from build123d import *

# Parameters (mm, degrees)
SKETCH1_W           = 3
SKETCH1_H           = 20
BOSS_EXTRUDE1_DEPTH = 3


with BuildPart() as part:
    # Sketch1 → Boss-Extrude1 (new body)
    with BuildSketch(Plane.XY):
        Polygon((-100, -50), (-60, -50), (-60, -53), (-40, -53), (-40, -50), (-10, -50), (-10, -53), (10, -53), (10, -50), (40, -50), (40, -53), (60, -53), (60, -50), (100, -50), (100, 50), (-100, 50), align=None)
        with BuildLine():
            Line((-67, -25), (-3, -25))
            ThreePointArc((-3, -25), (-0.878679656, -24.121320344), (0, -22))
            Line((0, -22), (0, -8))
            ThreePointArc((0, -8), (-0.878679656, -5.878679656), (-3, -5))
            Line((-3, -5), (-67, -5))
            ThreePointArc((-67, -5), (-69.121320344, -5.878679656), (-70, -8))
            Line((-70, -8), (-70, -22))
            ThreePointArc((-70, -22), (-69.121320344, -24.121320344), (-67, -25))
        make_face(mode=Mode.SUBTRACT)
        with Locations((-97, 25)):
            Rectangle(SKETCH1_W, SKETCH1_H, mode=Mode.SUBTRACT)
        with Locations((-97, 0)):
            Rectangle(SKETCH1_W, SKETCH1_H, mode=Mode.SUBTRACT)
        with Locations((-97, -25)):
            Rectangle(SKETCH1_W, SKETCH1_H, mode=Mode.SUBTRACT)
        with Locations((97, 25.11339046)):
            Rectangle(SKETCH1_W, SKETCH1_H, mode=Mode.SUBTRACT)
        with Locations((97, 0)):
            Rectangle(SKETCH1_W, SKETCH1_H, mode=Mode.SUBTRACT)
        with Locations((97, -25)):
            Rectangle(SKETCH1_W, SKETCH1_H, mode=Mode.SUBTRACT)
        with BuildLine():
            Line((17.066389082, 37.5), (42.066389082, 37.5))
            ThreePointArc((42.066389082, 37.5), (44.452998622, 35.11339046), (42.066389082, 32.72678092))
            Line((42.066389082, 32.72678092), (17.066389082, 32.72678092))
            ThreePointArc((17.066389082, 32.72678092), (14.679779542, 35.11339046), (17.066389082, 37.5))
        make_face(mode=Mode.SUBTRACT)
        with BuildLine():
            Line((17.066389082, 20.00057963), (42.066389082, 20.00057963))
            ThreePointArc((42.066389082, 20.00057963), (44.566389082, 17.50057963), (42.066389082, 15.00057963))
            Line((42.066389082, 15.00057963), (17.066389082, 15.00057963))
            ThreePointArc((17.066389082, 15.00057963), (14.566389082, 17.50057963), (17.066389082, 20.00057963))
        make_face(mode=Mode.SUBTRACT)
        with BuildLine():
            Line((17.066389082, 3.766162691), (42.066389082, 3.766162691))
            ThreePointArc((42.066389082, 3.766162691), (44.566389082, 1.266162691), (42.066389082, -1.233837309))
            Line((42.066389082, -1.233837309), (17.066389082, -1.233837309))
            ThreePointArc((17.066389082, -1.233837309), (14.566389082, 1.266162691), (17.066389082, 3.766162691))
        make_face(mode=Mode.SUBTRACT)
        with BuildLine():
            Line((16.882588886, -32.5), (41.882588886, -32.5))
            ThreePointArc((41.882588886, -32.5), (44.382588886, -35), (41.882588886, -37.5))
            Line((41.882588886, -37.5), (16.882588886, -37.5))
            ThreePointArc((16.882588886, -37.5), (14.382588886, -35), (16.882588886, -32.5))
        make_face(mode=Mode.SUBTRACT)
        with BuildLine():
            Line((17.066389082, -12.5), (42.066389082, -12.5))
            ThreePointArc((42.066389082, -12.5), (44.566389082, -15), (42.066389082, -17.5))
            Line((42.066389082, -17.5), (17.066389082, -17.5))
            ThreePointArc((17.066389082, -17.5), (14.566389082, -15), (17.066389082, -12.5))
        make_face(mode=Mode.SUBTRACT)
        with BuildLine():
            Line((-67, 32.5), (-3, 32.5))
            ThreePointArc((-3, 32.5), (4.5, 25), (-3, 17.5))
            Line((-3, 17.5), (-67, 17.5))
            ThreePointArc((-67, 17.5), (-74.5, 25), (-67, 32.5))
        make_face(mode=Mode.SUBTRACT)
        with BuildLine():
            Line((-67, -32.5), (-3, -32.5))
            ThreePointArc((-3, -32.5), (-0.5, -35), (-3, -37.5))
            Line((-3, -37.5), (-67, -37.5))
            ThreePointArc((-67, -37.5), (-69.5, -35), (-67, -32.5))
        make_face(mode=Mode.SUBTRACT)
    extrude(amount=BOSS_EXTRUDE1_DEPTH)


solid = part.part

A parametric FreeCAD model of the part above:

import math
import FreeCAD as App
import Part
import Sketcher

V = App.Vector


def add_polygon(sketch, points):
    """Adds a closed chain of lines whose ends are joined by coincident constraints."""
    first, n = sketch.GeometryCount, len(points)
    for a, b in zip(points, points[1:] + points[:1]):
        sketch.addGeometry(Part.LineSegment(App.Vector(*a, 0), App.Vector(*b, 0)), False)
    for i in range(n):
        sketch.addConstraint(Sketcher.Constraint("Coincident", first + i, 2, first + (i + 1) % n, 1))

doc = App.newDocument("Part")
body = doc.addObject("PartDesign::Body", "Body")

sketch1 = body.newObject("Sketcher::SketchObject", "Sketch")
sketch1.AttachmentSupport = (doc.getObject("XY_Plane"), [""])
sketch1.MapMode = "FlatFace"
add_polygon(sketch1, [(-100, -50), (-60, -50), (-60, -53), (-40, -53), (-40, -50), (-10, -50), (-10, -53), (10, -53), (10, -50), (40, -50), (40, -53), (60, -53), (60, -50), (100, -50), (100, 50), (-100, 50)])
add_polygon(sketch1, [(-95.5, -35), (-98.5, -35), (-98.5, -15), (-95.5, -15)])
sketch1.addGeometry(Part.ArcOfCircle(Part.Circle(V(-67, -35, 0), V(0, 0, 1), 2.5), math.radians(90), math.radians(270)), False)
sketch1.addGeometry(Part.LineSegment(V(-67, -32.5, 0), V(-3, -32.5, 0)), False)
sketch1.addGeometry(Part.ArcOfCircle(Part.Circle(V(-3, -35, 0), V(0, 0, 1), 2.5), math.radians(-90), math.radians(90)), False)
sketch1.addGeometry(Part.LineSegment(V(-3, -37.5, 0), V(-67, -37.5, 0)), False)
sketch1.addGeometry(Part.LineSegment(V(-3, -25, 0), V(-67, -25, 0)), False)
sketch1.addGeometry(Part.ArcOfCircle(Part.Circle(V(-67, -22, 0), V(0, 0, 1), 3), math.radians(180), math.radians(270)), False)
sketch1.addGeometry(Part.LineSegment(V(-70, -22, 0), V(-70, -8, 0)), False)
sketch1.addGeometry(Part.ArcOfCircle(Part.Circle(V(-67, -8, 0), V(0, 0, 1), 3), math.radians(90), math.radians(180)), False)
sketch1.addGeometry(Part.LineSegment(V(-67, -5, 0), V(-3, -5, 0)), False)
sketch1.addGeometry(Part.ArcOfCircle(Part.Circle(V(-3, -8, 0), V(0, 0, 1), 3), math.radians(0), math.radians(90)), False)
sketch1.addGeometry(Part.LineSegment(V(0, -8, 0), V(0, -22, 0)), False)
sketch1.addGeometry(Part.ArcOfCircle(Part.Circle(V(-3, -22, 0), V(0, 0, 1), 3), math.radians(-90), math.radians(0)), False)
sketch1.addGeometry(Part.ArcOfCircle(Part.Circle(V(16.9, -35, 0), V(0, 0, 1), 2.5), math.radians(90), math.radians(270)), False)
sketch1.addGeometry(Part.LineSegment(V(16.9, -32.5, 0), V(41.9, -32.5, 0)), False)
sketch1.addGeometry(Part.ArcOfCircle(Part.Circle(V(41.9, -35, 0), V(0, 0, 1), 2.5), math.radians(-90), math.radians(90)), False)
sketch1.addGeometry(Part.LineSegment(V(41.9, -37.5, 0), V(16.9, -37.5, 0)), False)
add_polygon(sketch1, [(98.5, -35), (95.5, -35), (95.5, -15), (98.5, -15)])
sketch1.addGeometry(Part.ArcOfCircle(Part.Circle(V(17.1, -15, 0), V(0, 0, 1), 2.5), math.radians(90), math.radians(270)), False)
sketch1.addGeometry(Part.LineSegment(V(17.1, -12.5, 0), V(42.1, -12.5, 0)), False)
sketch1.addGeometry(Part.ArcOfCircle(Part.Circle(V(42.1, -15, 0), V(0, 0, 1), 2.5), math.radians(-90), math.radians(90)), False)
sketch1.addGeometry(Part.LineSegment(V(42.1, -17.5, 0), V(17.1, -17.5, 0)), False)
add_polygon(sketch1, [(-95.5, -10), (-98.5, -10), (-98.5, 10), (-95.5, 10)])
add_polygon(sketch1, [(-95.5, 15), (-98.5, 15), (-98.5, 35), (-95.5, 35)])
sketch1.addGeometry(Part.ArcOfCircle(Part.Circle(V(-67, 25, 0), V(0, 0, 1), 7.5), math.radians(90), math.radians(270)), False)
sketch1.addGeometry(Part.LineSegment(V(-67, 32.5, 0), V(-3, 32.5, 0)), False)
sketch1.addGeometry(Part.ArcOfCircle(Part.Circle(V(-3, 25, 0), V(0, 0, 1), 7.5), math.radians(-90), math.radians(90)), False)
sketch1.addGeometry(Part.LineSegment(V(-3, 17.5, 0), V(-67, 17.5, 0)), False)
sketch1.addGeometry(Part.ArcOfCircle(Part.Circle(V(17.1, 1.3, 0), V(0, 0, 1), 2.5), math.radians(90), math.radians(270)), False)
sketch1.addGeometry(Part.LineSegment(V(17.1, 3.8, 0), V(42.1, 3.8, 0)), False)
sketch1.addGeometry(Part.ArcOfCircle(Part.Circle(V(42.1, 1.3, 0), V(0, 0, 1), 2.5), math.radians(-90), math.radians(90)), False)
sketch1.addGeometry(Part.LineSegment(V(42.1, -1.2, 0), V(17.1, -1.2, 0)), False)
sketch1.addGeometry(Part.ArcOfCircle(Part.Circle(V(17.1, 17.5, 0), V(0, 0, 1), 2.5), math.radians(90), math.radians(270)), False)
sketch1.addGeometry(Part.LineSegment(V(17.1, 20, 0), V(42.1, 20, 0)), False)
sketch1.addGeometry(Part.ArcOfCircle(Part.Circle(V(42.1, 17.5, 0), V(0, 0, 1), 2.5), math.radians(-90), math.radians(90)), False)
sketch1.addGeometry(Part.LineSegment(V(42.1, 15, 0), V(17.1, 15, 0)), False)
add_polygon(sketch1, [(98.5, -10), (95.5, -10), (95.5, 10), (98.5, 10)])
sketch1.addGeometry(Part.ArcOfCircle(Part.Circle(V(17.1, 35.1, 0), V(0, 0, 1), 2.4), math.radians(90), math.radians(270)), False)
sketch1.addGeometry(Part.LineSegment(V(17.1, 37.5, 0), V(42.1, 37.5, 0)), False)
sketch1.addGeometry(Part.ArcOfCircle(Part.Circle(V(42.1, 35.1, 0), V(0, 0, 1), 2.4), math.radians(-90), math.radians(90)), False)
sketch1.addGeometry(Part.LineSegment(V(42.1, 32.7, 0), V(17.1, 32.7, 0)), False)
add_polygon(sketch1, [(98.5, 15.1), (95.5, 15.1), (95.5, 35.1), (98.5, 35.1)])
sketch1.addConstraint([
    Sketcher.Constraint("Tangent", 20, 1, 21, 1),
    Sketcher.Constraint("Tangent", 21, 2, 22, 2),
    Sketcher.Constraint("Tangent", 22, 1, 23, 1),
    Sketcher.Constraint("Tangent", 23, 2, 20, 2),
    Sketcher.Constraint("Tangent", 24, 2, 25, 2),
    Sketcher.Constraint("Tangent", 25, 1, 26, 1),
    Sketcher.Constraint("Tangent", 26, 2, 27, 2),
    Sketcher.Constraint("Tangent", 27, 1, 28, 1),
    Sketcher.Constraint("Tangent", 28, 2, 29, 2),
    Sketcher.Constraint("Tangent", 29, 1, 30, 1),
    Sketcher.Constraint("Tangent", 30, 2, 31, 2),
    Sketcher.Constraint("Tangent", 31, 1, 24, 1),
    Sketcher.Constraint("Tangent", 32, 1, 33, 1),
    Sketcher.Constraint("Tangent", 33, 2, 34, 2),
    Sketcher.Constraint("Tangent", 34, 1, 35, 1),
    Sketcher.Constraint("Tangent", 35, 2, 32, 2),
    Sketcher.Constraint("Tangent", 40, 1, 41, 1),
    Sketcher.Constraint("Tangent", 41, 2, 42, 2),
    Sketcher.Constraint("Tangent", 42, 1, 43, 1),
    Sketcher.Constraint("Tangent", 43, 2, 40, 2),
    Sketcher.Constraint("Tangent", 52, 1, 53, 1),
    Sketcher.Constraint("Tangent", 53, 2, 54, 2),
    Sketcher.Constraint("Tangent", 54, 1, 55, 1),
    Sketcher.Constraint("Tangent", 55, 2, 52, 2),
    Sketcher.Constraint("Tangent", 56, 1, 57, 1),
    Sketcher.Constraint("Tangent", 57, 2, 58, 2),
    Sketcher.Constraint("Tangent", 58, 1, 59, 1),
    Sketcher.Constraint("Tangent", 59, 2, 56, 2),
    Sketcher.Constraint("Tangent", 60, 1, 61, 1),
    Sketcher.Constraint("Tangent", 61, 2, 62, 2),
    Sketcher.Constraint("Tangent", 62, 1, 63, 1),
    Sketcher.Constraint("Tangent", 63, 2, 60, 2),
    Sketcher.Constraint("Tangent", 68, 1, 69, 1),
    Sketcher.Constraint("Tangent", 69, 2, 70, 2),
    Sketcher.Constraint("Tangent", 70, 1, 71, 1),
    Sketcher.Constraint("Tangent", 71, 2, 68, 2),
    Sketcher.Constraint("Horizontal", 0),
    Sketcher.Constraint("Vertical", 1),
    Sketcher.Constraint("Horizontal", 2),
    Sketcher.Constraint("Vertical", 3),
    Sketcher.Constraint("Horizontal", 4),
    Sketcher.Constraint("Vertical", 5),
    Sketcher.Constraint("Horizontal", 6),
    Sketcher.Constraint("Vertical", 7),
    Sketcher.Constraint("Horizontal", 8),
    Sketcher.Constraint("Vertical", 9),
    Sketcher.Constraint("Horizontal", 10),
    Sketcher.Constraint("Vertical", 11),
    Sketcher.Constraint("Horizontal", 12),
    Sketcher.Constraint("Vertical", 13),
    Sketcher.Constraint("Horizontal", 14),
    Sketcher.Constraint("Vertical", 15),
    Sketcher.Constraint("Horizontal", 16),
    Sketcher.Constraint("Vertical", 17),
    Sketcher.Constraint("Horizontal", 18),
    Sketcher.Constraint("Vertical", 19),
    Sketcher.Constraint("Horizontal", 21),
    Sketcher.Constraint("Horizontal", 23),
    Sketcher.Constraint("Horizontal", 24),
    Sketcher.Constraint("Vertical", 26),
    Sketcher.Constraint("Horizontal", 28),
    Sketcher.Constraint("Vertical", 30),
    Sketcher.Constraint("Horizontal", 33),
    Sketcher.Constraint("Horizontal", 35),
    Sketcher.Constraint("Horizontal", 36),
    Sketcher.Constraint("Vertical", 37),
    Sketcher.Constraint("Horizontal", 38),
    Sketcher.Constraint("Vertical", 39),
    Sketcher.Constraint("Horizontal", 41),
    Sketcher.Constraint("Horizontal", 43),
    Sketcher.Constraint("Horizontal", 44),
    Sketcher.Constraint("Vertical", 45),
    Sketcher.Constraint("Horizontal", 46),
    Sketcher.Constraint("Vertical", 47),
    Sketcher.Constraint("Horizontal", 48),
    Sketcher.Constraint("Vertical", 49),
    Sketcher.Constraint("Horizontal", 50),
    Sketcher.Constraint("Vertical", 51),
    Sketcher.Constraint("Horizontal", 53),
    Sketcher.Constraint("Horizontal", 55),
    Sketcher.Constraint("Horizontal", 57),
    Sketcher.Constraint("Horizontal", 59),
    Sketcher.Constraint("Horizontal", 61),
    Sketcher.Constraint("Horizontal", 63),
    Sketcher.Constraint("Horizontal", 64),
    Sketcher.Constraint("Vertical", 65),
    Sketcher.Constraint("Horizontal", 66),
    Sketcher.Constraint("Vertical", 67),
    Sketcher.Constraint("Horizontal", 69),
    Sketcher.Constraint("Horizontal", 71),
    Sketcher.Constraint("Horizontal", 72),
    Sketcher.Constraint("Vertical", 73),
    Sketcher.Constraint("Horizontal", 74),
    Sketcher.Constraint("Vertical", 75),
    Sketcher.Constraint("Equal", 25, 27),
    Sketcher.Constraint("Equal", 27, 29),
    Sketcher.Constraint("Equal", 29, 31),
    Sketcher.Constraint("Equal", 22, 32),
    Sketcher.Constraint("Equal", 34, 40),
    Sketcher.Constraint("Equal", 42, 56),
    Sketcher.Constraint("Equal", 58, 60),
    Sketcher.Constraint("Symmetric", 12, 2, 14, 2, -1, 1),
    Sketcher.Constraint("Symmetric", 38, 2, 48, 2, -1, 1),
    Sketcher.Constraint("Symmetric", 36, 2, 50, 2, -1, 1),
    Sketcher.Constraint("Symmetric", 46, 2, 64, 2, -1, 1),
    Sketcher.Constraint("Symmetric", 44, 2, 66, 2, -1, 1),
    Sketcher.Constraint("Symmetric", 4, 2, 7, 2, -2),
    Sketcher.Constraint("Symmetric", 2, 2, 9, 2, -2),
    Sketcher.Constraint("Symmetric", 0, 2, 11, 2, -2),
    Sketcher.Constraint("Symmetric", 19, 2, 36, 2, -2),
    Sketcher.Constraint("Symmetric", 17, 2, 38, 2, -2),
    Sketcher.Constraint("Symmetric", 20, 1, 52, 1, -1),
    Sketcher.Constraint("PointOnObject", 29, 1, -2),
    Sketcher.Constraint("Horizontal", 22, 3, 32, 3),
    Sketcher.Constraint("Horizontal", 0, 2, 3, 2),
    Sketcher.Constraint("Horizontal", 2, 2, 5, 2),
    Sketcher.Constraint("Horizontal", 34, 3, 16, 2),
    Sketcher.Constraint("Horizontal", 42, 3, 17, 2),
    Sketcher.Constraint("Horizontal", 47, 2, 64, 2),
    Sketcher.Constraint("Horizontal", 70, 3, 73, 2),
    Sketcher.Constraint("Vertical", 20, 3, 25, 3),
    Sketcher.Constraint("Vertical", 22, 3, 29, 3),
    Sketcher.Constraint("Vertical", 31, 3, 54, 3),
    Sketcher.Constraint("Vertical", 40, 3, 56, 3),
    Sketcher.Constraint("Vertical", 42, 3, 58, 3),
    Sketcher.Constraint("Vertical", 56, 3, 60, 3),
    Sketcher.Constraint("Vertical", 58, 3, 62, 3),
    Sketcher.Constraint("Vertical", 60, 3, 68, 3),
    Sketcher.Constraint("Vertical", 62, 3, 70, 3),
    Sketcher.Constraint("Vertical", 17, 2, 44, 2),
    Sketcher.Constraint("Vertical", 19, 2, 46, 2),
    Sketcher.Constraint("Vertical", 65, 2, 72, 2),
    Sketcher.Constraint("Vertical", 67, 2, 74, 2),
    Sketcher.Constraint("Equal", 2, 6),
    Sketcher.Constraint("Equal", 35, 41),
    Sketcher.Constraint("Equal", 74, 1),
    Sketcher.Constraint("Equal", 10, 17),
    Sketcher.Constraint("Equal", 39, 45),
    Sketcher.Constraint("Equal", 67, 73),
    Sketcher.Constraint("Radius", 25, 3.0),
    Sketcher.Constraint("Radius", 20, 2.5),
    Sketcher.Constraint("Radius", 52, 7.5),
    Sketcher.Constraint("DistanceX", 0, 1, 0, 2, 40.0),
    Sketcher.Constraint("DistanceX", 2, 1, 2, 2, 20.0),
    Sketcher.Constraint("DistanceX", 4, 1, 4, 2, 30.0),
    Sketcher.Constraint("DistanceX", 16, 2, 16, 1, 3.0),
    Sketcher.Constraint("DistanceX", 21, 1, 21, 2, 64.0),
    Sketcher.Constraint("DistanceX", 33, 1, 33, 2, 25.0),
    Sketcher.Constraint("DistanceY", 13, 1, 13, 2, 100.0),
    Sketcher.Constraint("DistanceY", 26, 1, 26, 2, 14.0),
    Sketcher.Constraint("DistanceY", 20, 3, -1, 1, 35.0),
    Sketcher.Constraint("DistanceY", 25, 3, -1, 1, 22.0),
    Sketcher.Constraint("DistanceX", 16, 2, -1, 1, 98.5),
    Sketcher.Constraint("DistanceY", -1, 1, 68, 1, 37.5),
    Sketcher.Constraint("Radius", 68, 2.38661),
    Sketcher.Constraint("DistanceX", -1, 1, 32, 3, 16.882589),
    Sketcher.Constraint("DistanceX", -1, 1, 40, 3, 17.066389),
    Sketcher.Constraint("DistanceY", -1, 1, 60, 3, 17.50058),
    Sketcher.Constraint("DistanceY", -1, 1, 56, 3, 1.266163),
])
pad1 = body.newObject("PartDesign::Pad", "Pad")
pad1.Profile = sketch1
pad1.Length = 3

doc.recompute()
